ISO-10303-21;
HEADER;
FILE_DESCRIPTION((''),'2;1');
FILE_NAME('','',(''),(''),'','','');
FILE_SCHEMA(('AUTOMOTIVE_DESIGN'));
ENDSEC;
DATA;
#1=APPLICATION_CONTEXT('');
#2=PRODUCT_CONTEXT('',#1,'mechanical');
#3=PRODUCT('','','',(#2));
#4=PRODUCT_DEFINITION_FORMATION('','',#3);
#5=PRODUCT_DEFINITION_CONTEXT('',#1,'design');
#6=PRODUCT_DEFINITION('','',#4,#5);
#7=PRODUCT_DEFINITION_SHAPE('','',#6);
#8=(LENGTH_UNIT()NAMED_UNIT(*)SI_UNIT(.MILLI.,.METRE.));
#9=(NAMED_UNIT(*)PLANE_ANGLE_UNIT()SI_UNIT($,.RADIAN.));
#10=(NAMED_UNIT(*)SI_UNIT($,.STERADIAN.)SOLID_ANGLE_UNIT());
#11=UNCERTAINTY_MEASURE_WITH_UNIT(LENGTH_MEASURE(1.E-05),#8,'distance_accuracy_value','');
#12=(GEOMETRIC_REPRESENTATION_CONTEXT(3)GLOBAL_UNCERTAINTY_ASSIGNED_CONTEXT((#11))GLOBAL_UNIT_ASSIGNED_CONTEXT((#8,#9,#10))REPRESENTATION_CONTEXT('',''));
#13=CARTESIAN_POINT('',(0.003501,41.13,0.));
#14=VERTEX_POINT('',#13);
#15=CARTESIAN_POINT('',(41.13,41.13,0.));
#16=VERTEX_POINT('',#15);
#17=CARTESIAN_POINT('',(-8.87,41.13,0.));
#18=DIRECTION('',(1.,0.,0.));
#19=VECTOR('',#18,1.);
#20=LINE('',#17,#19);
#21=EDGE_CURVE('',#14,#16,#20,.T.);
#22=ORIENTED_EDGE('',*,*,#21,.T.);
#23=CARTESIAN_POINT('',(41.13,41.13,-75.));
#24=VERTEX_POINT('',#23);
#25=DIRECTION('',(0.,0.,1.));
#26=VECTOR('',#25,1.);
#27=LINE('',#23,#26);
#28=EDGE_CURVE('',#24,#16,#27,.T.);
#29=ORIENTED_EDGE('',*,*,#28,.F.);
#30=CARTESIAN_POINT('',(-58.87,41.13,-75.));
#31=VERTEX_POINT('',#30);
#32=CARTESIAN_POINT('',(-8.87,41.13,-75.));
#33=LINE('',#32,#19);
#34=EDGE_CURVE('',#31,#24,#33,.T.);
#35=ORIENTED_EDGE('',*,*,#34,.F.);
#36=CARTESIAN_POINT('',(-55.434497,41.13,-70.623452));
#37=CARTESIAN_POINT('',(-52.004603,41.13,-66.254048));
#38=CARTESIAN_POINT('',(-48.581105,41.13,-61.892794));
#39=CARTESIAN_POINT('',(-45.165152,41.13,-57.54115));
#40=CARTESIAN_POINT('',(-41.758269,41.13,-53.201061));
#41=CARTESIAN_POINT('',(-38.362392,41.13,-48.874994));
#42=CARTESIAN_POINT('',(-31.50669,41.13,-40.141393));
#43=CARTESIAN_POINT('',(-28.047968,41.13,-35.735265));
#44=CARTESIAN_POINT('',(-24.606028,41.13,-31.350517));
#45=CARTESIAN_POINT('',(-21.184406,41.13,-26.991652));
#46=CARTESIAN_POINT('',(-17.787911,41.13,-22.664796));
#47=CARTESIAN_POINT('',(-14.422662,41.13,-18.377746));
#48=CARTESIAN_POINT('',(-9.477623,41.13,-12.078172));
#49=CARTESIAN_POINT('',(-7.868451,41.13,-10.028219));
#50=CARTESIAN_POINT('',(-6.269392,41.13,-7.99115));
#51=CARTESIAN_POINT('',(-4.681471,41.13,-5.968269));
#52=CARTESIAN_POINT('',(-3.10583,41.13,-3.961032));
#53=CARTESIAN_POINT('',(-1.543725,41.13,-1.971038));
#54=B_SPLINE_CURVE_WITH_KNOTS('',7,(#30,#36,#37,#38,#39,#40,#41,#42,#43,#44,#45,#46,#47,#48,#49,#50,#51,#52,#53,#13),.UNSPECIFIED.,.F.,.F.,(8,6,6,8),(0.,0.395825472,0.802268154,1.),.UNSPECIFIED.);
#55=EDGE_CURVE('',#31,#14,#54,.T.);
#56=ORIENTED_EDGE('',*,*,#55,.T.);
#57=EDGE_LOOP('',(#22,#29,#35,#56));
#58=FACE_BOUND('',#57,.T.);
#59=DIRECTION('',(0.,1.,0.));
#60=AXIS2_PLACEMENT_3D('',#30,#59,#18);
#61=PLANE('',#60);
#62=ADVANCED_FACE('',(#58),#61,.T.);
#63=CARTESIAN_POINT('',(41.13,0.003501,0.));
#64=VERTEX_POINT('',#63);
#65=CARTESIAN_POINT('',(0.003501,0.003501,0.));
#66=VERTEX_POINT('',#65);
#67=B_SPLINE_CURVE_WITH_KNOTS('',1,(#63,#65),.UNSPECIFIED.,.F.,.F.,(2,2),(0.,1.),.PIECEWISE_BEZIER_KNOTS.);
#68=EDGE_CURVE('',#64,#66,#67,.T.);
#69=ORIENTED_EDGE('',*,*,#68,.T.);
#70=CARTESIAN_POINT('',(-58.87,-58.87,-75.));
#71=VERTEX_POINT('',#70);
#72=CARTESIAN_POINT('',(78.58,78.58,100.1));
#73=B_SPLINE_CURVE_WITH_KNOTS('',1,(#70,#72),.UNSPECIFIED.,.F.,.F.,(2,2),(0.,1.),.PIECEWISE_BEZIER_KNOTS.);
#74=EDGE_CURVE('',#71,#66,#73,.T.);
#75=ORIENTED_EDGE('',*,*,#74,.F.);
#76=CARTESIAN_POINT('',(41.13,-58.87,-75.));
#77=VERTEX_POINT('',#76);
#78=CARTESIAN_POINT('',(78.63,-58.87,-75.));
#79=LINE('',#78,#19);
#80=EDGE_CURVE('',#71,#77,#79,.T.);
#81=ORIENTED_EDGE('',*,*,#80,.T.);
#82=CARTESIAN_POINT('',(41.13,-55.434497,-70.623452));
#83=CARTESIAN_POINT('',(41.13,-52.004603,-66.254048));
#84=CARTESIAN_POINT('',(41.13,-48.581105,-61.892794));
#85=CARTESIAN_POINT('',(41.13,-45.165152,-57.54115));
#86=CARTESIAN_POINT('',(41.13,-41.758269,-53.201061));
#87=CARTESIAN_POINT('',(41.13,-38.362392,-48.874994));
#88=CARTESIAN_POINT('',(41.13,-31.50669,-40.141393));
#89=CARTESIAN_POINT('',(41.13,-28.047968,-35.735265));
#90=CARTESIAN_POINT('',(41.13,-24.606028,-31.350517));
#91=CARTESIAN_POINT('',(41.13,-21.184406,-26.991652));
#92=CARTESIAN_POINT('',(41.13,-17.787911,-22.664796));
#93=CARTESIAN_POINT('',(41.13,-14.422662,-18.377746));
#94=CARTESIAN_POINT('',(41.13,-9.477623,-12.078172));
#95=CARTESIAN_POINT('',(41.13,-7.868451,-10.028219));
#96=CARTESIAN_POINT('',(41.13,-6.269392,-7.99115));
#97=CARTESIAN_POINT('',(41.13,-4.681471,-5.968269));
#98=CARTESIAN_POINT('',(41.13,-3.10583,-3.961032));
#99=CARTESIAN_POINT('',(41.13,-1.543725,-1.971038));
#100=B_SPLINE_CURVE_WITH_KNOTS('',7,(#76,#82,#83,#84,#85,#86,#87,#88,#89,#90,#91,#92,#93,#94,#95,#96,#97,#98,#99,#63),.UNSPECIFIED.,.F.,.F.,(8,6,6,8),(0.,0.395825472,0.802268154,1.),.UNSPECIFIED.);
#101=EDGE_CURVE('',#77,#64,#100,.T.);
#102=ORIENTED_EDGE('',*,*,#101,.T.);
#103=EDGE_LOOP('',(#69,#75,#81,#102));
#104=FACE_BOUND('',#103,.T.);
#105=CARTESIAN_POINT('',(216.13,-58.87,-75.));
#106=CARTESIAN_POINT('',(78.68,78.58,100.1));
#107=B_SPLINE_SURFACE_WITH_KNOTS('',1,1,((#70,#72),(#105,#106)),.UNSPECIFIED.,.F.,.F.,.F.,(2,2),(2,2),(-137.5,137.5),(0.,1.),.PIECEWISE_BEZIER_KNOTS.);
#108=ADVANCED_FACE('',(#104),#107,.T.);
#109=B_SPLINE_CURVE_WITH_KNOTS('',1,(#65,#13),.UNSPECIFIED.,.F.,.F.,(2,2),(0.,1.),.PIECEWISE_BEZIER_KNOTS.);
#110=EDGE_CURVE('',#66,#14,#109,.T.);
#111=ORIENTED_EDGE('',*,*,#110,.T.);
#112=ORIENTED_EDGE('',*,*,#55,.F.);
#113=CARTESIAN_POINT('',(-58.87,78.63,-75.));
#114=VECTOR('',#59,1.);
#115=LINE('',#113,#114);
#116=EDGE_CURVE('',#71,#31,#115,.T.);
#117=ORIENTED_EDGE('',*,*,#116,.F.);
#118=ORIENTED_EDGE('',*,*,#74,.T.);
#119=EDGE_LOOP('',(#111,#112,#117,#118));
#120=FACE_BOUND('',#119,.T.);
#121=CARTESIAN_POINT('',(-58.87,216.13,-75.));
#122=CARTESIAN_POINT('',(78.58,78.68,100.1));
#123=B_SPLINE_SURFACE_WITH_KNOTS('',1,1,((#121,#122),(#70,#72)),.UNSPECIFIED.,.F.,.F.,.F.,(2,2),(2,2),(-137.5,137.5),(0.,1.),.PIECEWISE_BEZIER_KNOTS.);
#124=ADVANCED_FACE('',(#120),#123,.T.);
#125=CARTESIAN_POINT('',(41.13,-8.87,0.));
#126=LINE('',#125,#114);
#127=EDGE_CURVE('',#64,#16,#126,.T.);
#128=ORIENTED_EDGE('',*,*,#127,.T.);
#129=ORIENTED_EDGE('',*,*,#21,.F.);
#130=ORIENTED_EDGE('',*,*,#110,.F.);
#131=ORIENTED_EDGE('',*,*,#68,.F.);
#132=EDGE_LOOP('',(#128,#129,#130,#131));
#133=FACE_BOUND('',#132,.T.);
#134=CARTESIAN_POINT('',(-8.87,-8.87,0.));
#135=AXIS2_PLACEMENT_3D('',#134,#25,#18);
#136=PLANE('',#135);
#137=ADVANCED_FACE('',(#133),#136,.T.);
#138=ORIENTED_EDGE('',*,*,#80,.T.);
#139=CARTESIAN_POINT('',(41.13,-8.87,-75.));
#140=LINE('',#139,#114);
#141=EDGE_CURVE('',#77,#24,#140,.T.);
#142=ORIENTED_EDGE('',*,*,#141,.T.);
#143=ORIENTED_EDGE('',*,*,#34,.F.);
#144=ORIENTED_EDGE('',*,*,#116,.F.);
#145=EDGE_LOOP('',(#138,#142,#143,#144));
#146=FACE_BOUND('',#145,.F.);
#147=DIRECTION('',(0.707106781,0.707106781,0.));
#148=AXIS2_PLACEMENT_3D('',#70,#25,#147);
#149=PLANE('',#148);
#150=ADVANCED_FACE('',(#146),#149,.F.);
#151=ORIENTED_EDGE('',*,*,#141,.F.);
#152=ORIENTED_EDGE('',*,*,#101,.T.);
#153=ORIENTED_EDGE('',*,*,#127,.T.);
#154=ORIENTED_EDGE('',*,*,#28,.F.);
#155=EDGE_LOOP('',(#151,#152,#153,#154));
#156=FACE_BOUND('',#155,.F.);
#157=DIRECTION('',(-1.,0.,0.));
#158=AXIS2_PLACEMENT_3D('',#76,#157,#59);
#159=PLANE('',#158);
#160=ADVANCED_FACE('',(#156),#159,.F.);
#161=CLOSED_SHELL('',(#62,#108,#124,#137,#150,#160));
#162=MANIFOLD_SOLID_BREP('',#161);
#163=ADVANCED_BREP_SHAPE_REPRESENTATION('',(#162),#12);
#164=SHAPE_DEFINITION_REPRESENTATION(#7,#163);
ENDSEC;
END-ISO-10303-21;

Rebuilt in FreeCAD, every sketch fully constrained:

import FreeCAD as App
import Part
import Sketcher
Q = App.Units.Quantity


def add_polygon(sketch, points):
    """Adds a closed chain of lines whose ends are joined by coincident constraints."""
    first, n = sketch.GeometryCount, len(points)
    for a, b in zip(points, points[1:] + points[:1]):
        sketch.addGeometry(Part.LineSegment(App.Vector(*a, 0), App.Vector(*b, 0)), False)
    for i in range(n):
        sketch.addConstraint(Sketcher.Constraint("Coincident", first + i, 2, first + (i + 1) % n, 1))

doc = App.newDocument("Part")
body = doc.addObject("PartDesign::Body", "Body")

sketch1 = doc.addObject("Sketcher::SketchObject", "Sketch")
body.addObject(sketch1)
sketch1.AttachmentSupport = (doc.XY_Plane, [""])
sketch1.MapMode = "FlatFace"
add_polygon(sketch1, [(0, 100), (0, 0), (100, 0), (100, 100)])
sketch1.addConstraint([
    Sketcher.Constraint("Vertical", 0),
    Sketcher.Constraint("Horizontal", 1),
    Sketcher.Constraint("Vertical", 2),
    Sketcher.Constraint("Horizontal", 3),
    Sketcher.Constraint("Coincident", 0, 2, -1, 1),
    Sketcher.Constraint("Equal", 3, 0),
    Sketcher.Constraint("DistanceX", 1, 1, 1, 2, Q("100 mm")),
])
pad1 = doc.addObject("PartDesign::Pad", "Pad")
body.addObject(pad1)
pad1.Profile = sketch1
pad1.Length = 75
body2 = doc.addObject("PartDesign::Body", "Body001")

sketch2 = doc.addObject("Sketcher::SketchObject", "Sketch001")
body2.addObject(sketch2)
sketch2.AttachmentSupport = (doc.getObject("XY_Plane001"), [""])
sketch2.MapMode = "FlatFace"
add_polygon(sketch2, [(0, 275), (0, 0), (275, 0), (275, 275)])
sketch2.addConstraint([
    Sketcher.Constraint("Vertical", 0),
    Sketcher.Constraint("Horizontal", 1),
    Sketcher.Constraint("Vertical", 2),
    Sketcher.Constraint("Horizontal", 3),
    Sketcher.Constraint("Coincident", 0, 2, -1, 1),
    Sketcher.Constraint("Equal", 3, 0),
    Sketcher.Constraint("DistanceX", 1, 1, 1, 2, Q("275 mm")),
])

sketch3 = doc.addObject("Sketcher::SketchObject", "Sketch002")
body2.addObject(sketch3)
sketch3.AttachmentSupport = (doc.getObject("XY_Plane001"), [""])
sketch3.MapMode = "FlatFace"
sketch3.AttachmentOffset = App.Placement(App.Vector(0, 0, 175.1), App.Rotation())
add_polygon(sketch3, [(137.45, 137.55), (137.45, 137.45), (137.55, 137.45), (137.55, 137.55)])
sketch3.addConstraint([
    Sketcher.Constraint("Vertical", 0),
    Sketcher.Constraint("Horizontal", 1),
    Sketcher.Constraint("Vertical", 2),
    Sketcher.Constraint("Horizontal", 3),
    Sketcher.Constraint("Equal", 3, 0),
    Sketcher.Constraint("DistanceX", 1, 1, 1, 2, Q("0.1 mm")),
    Sketcher.Constraint("DistanceX", -1, 1, 0, 2, Q("137.45 mm")),
    Sketcher.Constraint("DistanceY", -1, 1, 0, 2, Q("137.45 mm")),
])

additiveloft = doc.addObject("PartDesign::AdditiveLoft", "AdditiveLoft")
body2.addObject(additiveloft)
additiveloft.Profile = sketch2
additiveloft.Sections = [sketch3]
doc.recompute()

boolean = doc.addObject("PartDesign::Boolean", "Boolean")
body2.addObject(boolean)
boolean.Type = "Common"
boolean.addObjects([body])
body3 = doc.addObject("PartDesign::Body", "Body002")
doc.recompute()

body2.Placement = App.Placement(App.Vector(-58.87, -58.87, -75), App.Rotation(App.Vector(0, 0, 1), 0))
boolean2 = doc.addObject("PartDesign::Boolean", "Boolean001")
body3.addObject(boolean2)
boolean2.Type = "Fuse"
boolean2.addObjects([body2])

doc.recompute()
